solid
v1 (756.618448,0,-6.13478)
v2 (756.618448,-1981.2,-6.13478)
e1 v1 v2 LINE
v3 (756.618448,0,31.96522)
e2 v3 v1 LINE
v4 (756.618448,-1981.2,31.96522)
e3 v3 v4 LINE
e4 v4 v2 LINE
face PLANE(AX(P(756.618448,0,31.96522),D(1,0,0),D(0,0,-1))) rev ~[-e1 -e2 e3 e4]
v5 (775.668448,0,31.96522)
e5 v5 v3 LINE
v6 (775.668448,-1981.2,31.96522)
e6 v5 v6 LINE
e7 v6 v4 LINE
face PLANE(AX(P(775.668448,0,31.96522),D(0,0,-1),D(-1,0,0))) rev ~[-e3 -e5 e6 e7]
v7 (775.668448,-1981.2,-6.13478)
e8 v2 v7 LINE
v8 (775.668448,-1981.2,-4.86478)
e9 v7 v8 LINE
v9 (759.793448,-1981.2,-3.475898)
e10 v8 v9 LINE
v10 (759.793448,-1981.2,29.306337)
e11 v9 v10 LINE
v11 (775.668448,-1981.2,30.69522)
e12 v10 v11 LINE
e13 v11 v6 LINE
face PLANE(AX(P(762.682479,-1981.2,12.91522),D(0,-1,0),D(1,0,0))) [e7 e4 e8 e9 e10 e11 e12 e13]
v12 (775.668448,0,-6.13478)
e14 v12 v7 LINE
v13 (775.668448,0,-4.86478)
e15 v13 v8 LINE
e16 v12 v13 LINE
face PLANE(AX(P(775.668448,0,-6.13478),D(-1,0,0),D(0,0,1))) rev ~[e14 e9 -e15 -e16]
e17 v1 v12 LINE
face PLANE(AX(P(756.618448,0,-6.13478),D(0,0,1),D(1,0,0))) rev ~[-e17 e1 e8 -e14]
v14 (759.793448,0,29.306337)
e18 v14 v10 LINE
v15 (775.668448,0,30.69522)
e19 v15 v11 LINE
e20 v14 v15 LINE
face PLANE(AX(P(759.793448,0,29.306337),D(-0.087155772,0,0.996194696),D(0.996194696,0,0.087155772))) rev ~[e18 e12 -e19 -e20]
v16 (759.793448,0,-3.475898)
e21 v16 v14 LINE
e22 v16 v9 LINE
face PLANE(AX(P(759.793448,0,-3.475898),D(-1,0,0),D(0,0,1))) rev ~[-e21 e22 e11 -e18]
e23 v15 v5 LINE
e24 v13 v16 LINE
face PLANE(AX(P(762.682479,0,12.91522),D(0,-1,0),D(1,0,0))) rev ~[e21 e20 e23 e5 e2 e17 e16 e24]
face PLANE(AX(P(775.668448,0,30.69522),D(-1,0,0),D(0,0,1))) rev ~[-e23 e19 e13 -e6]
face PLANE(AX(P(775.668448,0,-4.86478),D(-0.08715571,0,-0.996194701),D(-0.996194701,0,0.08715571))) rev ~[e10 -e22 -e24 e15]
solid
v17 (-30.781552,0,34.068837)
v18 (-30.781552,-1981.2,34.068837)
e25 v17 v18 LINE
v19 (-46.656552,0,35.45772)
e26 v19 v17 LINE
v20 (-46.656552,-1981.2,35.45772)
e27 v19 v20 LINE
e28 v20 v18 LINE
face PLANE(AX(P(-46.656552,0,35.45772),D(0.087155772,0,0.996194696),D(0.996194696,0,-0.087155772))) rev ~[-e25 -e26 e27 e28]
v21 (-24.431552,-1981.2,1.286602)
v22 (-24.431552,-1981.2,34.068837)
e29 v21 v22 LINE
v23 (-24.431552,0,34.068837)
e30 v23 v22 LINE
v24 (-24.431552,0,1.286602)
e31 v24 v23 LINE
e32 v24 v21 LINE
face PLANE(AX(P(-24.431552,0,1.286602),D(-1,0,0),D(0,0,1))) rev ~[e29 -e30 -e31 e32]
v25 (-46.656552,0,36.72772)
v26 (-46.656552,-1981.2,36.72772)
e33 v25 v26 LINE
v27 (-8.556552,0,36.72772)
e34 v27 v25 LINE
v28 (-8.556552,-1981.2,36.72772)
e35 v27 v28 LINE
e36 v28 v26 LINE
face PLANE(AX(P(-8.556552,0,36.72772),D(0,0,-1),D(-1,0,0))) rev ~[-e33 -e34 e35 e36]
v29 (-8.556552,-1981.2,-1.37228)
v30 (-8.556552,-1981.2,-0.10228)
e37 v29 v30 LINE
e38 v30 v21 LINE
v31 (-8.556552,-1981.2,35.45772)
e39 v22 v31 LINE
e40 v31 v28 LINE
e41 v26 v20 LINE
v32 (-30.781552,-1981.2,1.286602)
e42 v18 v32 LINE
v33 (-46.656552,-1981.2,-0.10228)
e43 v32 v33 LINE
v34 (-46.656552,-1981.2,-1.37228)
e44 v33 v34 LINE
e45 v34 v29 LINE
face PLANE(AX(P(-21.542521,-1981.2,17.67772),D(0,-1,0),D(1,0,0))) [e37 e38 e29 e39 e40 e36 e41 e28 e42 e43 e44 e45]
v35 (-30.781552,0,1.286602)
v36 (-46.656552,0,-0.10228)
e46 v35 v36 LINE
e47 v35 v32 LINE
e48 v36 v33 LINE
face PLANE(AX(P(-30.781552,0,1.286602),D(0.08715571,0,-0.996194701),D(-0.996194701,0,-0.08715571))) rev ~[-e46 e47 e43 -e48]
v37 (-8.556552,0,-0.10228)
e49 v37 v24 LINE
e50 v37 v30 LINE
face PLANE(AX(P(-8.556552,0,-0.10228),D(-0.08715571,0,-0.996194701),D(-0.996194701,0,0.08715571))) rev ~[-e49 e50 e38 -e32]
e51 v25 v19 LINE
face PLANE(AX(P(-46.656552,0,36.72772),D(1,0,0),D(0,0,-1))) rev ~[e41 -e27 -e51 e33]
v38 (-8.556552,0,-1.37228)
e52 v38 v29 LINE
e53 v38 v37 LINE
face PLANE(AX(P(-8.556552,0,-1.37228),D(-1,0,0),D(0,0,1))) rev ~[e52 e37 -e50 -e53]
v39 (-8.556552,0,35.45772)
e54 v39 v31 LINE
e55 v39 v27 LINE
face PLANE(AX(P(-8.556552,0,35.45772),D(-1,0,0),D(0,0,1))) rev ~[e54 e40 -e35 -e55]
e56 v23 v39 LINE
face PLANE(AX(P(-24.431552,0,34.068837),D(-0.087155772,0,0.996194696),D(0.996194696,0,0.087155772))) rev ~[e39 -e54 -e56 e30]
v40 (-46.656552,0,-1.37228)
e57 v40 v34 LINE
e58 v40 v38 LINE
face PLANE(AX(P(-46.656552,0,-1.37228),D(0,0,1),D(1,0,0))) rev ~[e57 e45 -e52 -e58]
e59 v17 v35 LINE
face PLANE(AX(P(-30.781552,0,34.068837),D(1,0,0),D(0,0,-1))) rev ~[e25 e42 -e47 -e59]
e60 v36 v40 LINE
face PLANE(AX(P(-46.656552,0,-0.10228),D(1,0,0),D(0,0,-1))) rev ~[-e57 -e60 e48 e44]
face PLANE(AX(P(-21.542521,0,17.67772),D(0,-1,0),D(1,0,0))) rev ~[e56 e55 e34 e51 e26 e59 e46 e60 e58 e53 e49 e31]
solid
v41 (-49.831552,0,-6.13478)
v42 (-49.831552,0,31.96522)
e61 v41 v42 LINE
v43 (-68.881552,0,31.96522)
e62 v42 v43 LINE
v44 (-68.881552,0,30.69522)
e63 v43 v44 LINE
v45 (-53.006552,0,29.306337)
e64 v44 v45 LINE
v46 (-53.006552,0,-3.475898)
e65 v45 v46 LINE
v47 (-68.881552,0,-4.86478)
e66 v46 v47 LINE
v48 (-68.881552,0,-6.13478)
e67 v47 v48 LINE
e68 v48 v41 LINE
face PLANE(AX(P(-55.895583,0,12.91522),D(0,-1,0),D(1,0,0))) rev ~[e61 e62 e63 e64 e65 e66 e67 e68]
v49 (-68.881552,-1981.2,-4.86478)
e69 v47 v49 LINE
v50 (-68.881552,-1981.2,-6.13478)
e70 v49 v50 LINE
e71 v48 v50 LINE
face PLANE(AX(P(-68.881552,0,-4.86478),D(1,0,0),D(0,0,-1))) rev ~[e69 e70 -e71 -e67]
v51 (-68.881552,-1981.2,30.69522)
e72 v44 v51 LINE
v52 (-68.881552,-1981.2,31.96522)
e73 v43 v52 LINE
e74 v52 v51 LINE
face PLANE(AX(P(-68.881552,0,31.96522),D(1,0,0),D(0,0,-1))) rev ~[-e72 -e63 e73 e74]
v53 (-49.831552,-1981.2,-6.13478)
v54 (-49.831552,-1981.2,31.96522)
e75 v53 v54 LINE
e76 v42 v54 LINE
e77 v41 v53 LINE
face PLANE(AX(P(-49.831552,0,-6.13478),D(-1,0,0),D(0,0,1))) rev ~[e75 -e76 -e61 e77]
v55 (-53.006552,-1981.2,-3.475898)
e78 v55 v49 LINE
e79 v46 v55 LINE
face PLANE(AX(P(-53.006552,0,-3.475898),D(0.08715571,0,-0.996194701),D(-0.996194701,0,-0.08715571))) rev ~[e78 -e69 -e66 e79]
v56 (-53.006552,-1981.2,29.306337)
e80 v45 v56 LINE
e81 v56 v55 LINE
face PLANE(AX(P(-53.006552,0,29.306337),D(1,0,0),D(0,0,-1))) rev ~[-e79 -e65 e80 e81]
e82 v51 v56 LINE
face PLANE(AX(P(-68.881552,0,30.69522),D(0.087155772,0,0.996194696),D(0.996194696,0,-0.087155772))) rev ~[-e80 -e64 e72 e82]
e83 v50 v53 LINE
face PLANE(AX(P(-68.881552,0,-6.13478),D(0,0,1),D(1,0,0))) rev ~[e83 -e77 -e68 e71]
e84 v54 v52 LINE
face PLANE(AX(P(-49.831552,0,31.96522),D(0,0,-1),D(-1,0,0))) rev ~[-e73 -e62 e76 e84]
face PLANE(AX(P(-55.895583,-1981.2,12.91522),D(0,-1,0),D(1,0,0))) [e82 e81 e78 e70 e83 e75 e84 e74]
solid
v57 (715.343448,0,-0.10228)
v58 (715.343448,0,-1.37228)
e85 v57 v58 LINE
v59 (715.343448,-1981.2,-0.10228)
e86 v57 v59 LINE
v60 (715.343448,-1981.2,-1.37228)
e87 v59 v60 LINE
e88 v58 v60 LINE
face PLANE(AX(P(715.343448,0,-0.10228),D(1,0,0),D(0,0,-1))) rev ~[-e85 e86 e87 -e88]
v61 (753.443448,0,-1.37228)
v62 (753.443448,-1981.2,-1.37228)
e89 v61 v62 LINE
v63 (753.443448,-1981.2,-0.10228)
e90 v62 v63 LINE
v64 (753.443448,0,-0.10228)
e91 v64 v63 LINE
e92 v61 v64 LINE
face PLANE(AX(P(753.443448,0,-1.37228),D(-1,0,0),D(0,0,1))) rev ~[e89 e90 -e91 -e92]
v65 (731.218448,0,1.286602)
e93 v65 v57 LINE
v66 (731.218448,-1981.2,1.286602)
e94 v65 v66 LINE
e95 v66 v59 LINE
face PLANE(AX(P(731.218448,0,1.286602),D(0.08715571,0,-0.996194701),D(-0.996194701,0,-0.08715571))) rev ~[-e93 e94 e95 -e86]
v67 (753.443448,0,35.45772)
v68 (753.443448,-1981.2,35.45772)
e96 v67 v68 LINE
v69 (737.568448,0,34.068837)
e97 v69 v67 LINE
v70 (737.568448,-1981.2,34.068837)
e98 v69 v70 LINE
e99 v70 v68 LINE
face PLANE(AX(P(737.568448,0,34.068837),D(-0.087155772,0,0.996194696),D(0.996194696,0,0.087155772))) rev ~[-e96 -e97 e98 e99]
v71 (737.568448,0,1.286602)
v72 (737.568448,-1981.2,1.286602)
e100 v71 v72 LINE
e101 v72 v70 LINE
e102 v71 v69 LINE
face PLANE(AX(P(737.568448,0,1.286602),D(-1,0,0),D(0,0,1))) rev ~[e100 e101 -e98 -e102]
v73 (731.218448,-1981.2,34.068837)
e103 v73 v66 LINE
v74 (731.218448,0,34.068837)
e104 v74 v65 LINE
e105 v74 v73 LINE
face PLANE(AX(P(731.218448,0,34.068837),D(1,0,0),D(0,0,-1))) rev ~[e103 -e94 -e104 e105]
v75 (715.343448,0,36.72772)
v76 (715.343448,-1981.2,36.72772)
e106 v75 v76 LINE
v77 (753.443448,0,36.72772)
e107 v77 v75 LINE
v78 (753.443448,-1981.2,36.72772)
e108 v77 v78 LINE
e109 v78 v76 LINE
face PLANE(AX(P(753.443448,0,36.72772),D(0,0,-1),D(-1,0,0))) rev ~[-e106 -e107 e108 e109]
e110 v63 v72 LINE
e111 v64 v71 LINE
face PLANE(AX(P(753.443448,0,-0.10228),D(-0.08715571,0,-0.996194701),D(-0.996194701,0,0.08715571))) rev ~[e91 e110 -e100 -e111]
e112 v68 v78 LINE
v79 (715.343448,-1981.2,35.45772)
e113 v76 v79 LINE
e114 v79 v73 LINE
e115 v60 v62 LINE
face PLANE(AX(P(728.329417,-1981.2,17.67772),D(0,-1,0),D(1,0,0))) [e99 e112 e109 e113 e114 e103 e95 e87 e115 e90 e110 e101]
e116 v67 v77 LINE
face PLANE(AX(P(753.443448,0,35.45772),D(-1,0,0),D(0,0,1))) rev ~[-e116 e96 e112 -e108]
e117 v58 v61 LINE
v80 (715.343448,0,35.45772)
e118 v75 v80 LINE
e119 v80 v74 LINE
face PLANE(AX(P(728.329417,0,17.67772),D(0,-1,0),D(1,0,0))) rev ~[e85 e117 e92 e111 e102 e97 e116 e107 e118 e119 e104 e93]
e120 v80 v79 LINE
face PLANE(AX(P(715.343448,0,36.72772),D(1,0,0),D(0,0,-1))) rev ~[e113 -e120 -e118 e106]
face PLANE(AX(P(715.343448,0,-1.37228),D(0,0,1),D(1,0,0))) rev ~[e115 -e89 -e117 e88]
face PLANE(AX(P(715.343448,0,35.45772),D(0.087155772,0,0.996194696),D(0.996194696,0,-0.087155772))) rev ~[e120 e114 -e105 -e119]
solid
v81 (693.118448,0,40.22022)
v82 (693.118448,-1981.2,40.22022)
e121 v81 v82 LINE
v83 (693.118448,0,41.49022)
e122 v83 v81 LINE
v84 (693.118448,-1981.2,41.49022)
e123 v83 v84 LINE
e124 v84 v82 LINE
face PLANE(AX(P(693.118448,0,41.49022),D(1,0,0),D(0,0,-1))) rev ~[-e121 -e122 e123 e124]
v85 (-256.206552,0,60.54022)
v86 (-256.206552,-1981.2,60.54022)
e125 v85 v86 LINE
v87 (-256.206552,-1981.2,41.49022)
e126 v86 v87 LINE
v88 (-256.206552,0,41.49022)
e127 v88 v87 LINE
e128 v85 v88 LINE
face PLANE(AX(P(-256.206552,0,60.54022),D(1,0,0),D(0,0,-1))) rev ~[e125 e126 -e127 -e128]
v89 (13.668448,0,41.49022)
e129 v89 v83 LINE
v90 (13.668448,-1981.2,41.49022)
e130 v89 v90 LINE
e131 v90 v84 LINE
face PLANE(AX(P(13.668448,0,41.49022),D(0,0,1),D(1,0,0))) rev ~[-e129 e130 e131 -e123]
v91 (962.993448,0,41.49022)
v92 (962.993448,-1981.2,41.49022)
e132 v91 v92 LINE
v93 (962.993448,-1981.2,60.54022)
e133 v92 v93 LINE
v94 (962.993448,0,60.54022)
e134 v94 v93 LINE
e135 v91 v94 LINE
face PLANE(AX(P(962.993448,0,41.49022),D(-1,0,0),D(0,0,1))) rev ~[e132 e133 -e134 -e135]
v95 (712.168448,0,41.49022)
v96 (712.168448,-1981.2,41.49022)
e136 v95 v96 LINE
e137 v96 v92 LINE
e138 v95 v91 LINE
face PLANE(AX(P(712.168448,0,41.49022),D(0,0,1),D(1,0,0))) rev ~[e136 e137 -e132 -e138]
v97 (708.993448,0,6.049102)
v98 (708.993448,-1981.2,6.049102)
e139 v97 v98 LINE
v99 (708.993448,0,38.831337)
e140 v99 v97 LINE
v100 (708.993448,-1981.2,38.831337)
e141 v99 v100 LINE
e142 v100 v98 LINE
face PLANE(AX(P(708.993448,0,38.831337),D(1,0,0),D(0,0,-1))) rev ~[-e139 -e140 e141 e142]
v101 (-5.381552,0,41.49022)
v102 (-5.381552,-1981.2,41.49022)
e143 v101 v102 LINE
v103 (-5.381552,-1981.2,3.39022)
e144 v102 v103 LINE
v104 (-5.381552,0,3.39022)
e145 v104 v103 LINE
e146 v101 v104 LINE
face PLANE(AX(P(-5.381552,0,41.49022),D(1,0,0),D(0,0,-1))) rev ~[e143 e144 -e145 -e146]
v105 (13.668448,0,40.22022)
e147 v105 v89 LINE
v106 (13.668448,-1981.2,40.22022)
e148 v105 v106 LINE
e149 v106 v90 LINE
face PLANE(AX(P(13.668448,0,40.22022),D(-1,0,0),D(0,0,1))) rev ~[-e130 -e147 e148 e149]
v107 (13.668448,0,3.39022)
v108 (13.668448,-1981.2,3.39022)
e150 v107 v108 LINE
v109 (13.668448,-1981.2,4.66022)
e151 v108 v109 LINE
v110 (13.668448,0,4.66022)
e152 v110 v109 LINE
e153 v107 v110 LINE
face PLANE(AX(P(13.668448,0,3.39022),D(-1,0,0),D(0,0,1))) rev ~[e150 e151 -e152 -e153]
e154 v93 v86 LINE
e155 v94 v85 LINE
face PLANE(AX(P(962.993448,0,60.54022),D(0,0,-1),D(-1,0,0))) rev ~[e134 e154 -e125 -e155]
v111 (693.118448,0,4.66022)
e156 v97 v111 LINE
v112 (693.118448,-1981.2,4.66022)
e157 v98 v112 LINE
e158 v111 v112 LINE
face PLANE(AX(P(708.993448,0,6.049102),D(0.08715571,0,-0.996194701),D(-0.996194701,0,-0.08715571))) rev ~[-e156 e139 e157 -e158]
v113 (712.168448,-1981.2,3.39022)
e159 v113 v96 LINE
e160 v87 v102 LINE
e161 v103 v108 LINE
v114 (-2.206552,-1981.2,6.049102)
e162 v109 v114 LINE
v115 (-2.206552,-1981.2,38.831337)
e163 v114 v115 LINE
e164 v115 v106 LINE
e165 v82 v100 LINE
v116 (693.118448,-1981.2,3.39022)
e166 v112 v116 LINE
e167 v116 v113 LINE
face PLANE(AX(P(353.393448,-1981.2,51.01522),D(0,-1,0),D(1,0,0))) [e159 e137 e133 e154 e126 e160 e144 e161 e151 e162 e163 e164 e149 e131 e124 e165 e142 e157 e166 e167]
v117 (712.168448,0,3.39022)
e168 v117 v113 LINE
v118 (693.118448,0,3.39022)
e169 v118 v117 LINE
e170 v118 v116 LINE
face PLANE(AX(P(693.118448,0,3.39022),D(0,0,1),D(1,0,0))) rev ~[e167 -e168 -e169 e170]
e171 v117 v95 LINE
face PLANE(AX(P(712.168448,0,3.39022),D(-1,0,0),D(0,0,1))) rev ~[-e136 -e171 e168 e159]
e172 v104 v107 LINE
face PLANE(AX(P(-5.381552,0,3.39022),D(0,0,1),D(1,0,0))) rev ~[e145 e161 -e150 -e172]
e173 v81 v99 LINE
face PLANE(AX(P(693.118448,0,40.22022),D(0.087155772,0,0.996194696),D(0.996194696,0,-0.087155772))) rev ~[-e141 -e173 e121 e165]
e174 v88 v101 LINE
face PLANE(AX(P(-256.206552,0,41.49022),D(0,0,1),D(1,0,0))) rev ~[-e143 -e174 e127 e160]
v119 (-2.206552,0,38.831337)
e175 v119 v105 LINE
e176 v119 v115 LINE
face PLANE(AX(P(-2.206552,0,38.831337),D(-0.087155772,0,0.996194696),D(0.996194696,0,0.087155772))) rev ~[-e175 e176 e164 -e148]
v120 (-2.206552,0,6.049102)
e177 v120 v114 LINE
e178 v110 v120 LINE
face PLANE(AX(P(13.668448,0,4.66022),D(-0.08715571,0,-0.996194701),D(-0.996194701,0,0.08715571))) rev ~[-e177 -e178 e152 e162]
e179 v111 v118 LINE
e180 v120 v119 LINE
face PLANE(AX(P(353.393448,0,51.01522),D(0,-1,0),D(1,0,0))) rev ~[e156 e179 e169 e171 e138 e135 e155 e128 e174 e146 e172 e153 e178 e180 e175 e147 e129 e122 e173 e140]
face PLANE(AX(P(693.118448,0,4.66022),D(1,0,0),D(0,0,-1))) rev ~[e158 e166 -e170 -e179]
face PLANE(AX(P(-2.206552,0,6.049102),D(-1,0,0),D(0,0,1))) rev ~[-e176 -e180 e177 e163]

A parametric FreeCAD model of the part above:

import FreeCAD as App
import Part
import Sketcher
from FreeCAD import Vector
Q = App.Units.Quantity


def add_polygon(sketch, points):
    """Adds a closed chain of lines whose ends are joined by coincident constraints."""
    first, n = sketch.GeometryCount, len(points)
    for a, b in zip(points, points[1:] + points[:1]):
        sketch.addGeometry(Part.LineSegment(App.Vector(*a, 0), App.Vector(*b, 0)), False)
    for i in range(n):
        sketch.addConstraint(Sketcher.Constraint("Coincident", first + i, 2, first + (i + 1) % n, 1))

doc = App.newDocument("Part")
body = doc.addObject("PartDesign::Body", "Body")
body.AllowCompound = True

# Sketch on XZ plane
sketch1 = body.newObject("Sketcher::SketchObject", "Sketch")
sketch1.AttachmentSupport = (doc.getObject("XZ_Plane"), [""])
sketch1.MapMode = "FlatFace"
add_polygon(sketch1, [(-8.6, 36.7), (-46.7, 36.7), (-46.7, 35.5), (-30.8, 34.1), (-30.8, 1.3), (-46.7, -0.1), (-46.7, -1.4), (-8.6, -1.4), (-8.6, -0.1), (-24.4, 1.3), (-24.4, 34.1), (-8.6, 35.5)])  # lines 0-11
add_polygon(sketch1, [(-256.2, 60.5), (-256.2, 41.5), (-5.4, 41.5), (-5.4, 3.4), (13.7, 3.4), (13.7, 4.7), (-2.2, 6), (-2.2, 38.8), (13.7, 40.2), (13.7, 41.5), (693.1, 41.5), (693.1, 40.2), (709, 38.8), (709, 6), (693.1, 4.7), (693.1, 3.4), (712.2, 3.4), (712.2, 41.5), (963, 41.5), (963, 60.5)])  # lines 12-31
add_polygon(sketch1, [(-68.9, -6.1), (-49.8, -6.1), (-49.8, 32), (-68.9, 32), (-68.9, 30.7), (-53, 29.3), (-53, -3.5), (-68.9, -4.9)])  # lines 32-39
add_polygon(sketch1, [(731.2, 1.3), (715.3, -0.1), (715.3, -1.4), (753.4, -1.4), (753.4, -0.1), (737.6, 1.3), (737.6, 34.1), (753.4, 35.5), (753.4, 36.7), (715.3, 36.7), (715.3, 35.5), (731.2, 34.1)])  # lines 40-51
add_polygon(sketch1, [(775.7, 30.7), (775.7, 32), (756.6, 32), (756.6, -6.1), (775.7, -6.1), (775.7, -4.9), (759.8, -3.5), (759.8, 29.3)])  # lines 52-59
sketch1.addConstraint(Sketcher.Constraint("Horizontal", 0))
sketch1.addConstraint(Sketcher.Constraint("Vertical", 1))
sketch1.addConstraint(Sketcher.Constraint("Vertical", 3))
sketch1.addConstraint(Sketcher.Constraint("Vertical", 5))
sketch1.addConstraint(Sketcher.Constraint("Horizontal", 6))
sketch1.addConstraint(Sketcher.Constraint("Vertical", 7))
sketch1.addConstraint(Sketcher.Constraint("Vertical", 9))
sketch1.addConstraint(Sketcher.Constraint("Vertical", 11))
sketch1.addConstraint(Sketcher.Constraint("Vertical", 12))
sketch1.addConstraint(Sketcher.Constraint("Horizontal", 13))
sketch1.addConstraint(Sketcher.Constraint("Vertical", 14))
sketch1.addConstraint(Sketcher.Constraint("Horizontal", 15))
sketch1.addConstraint(Sketcher.Constraint("Vertical", 16))
sketch1.addConstraint(Sketcher.Constraint("Vertical", 18))
sketch1.addConstraint(Sketcher.Constraint("Vertical", 20))
sketch1.addConstraint(Sketcher.Constraint("Horizontal", 21))
sketch1.addConstraint(Sketcher.Constraint("Vertical", 22))
sketch1.addConstraint(Sketcher.Constraint("Vertical", 24))
sketch1.addConstraint(Sketcher.Constraint("Vertical", 26))
sketch1.addConstraint(Sketcher.Constraint("Horizontal", 27))
sketch1.addConstraint(Sketcher.Constraint("Vertical", 28))
sketch1.addConstraint(Sketcher.Constraint("Horizontal", 29))
sketch1.addConstraint(Sketcher.Constraint("Vertical", 30))
sketch1.addConstraint(Sketcher.Constraint("Horizontal", 31))
sketch1.addConstraint(Sketcher.Constraint("Horizontal", 32))
sketch1.addConstraint(Sketcher.Constraint("Vertical", 33))
sketch1.addConstraint(Sketcher.Constraint("Horizontal", 34))
sketch1.addConstraint(Sketcher.Constraint("Vertical", 35))
sketch1.addConstraint(Sketcher.Constraint("Vertical", 37))
sketch1.addConstraint(Sketcher.Constraint("Vertical", 39))
sketch1.addConstraint(Sketcher.Constraint("Vertical", 41))
sketch1.addConstraint(Sketcher.Constraint("Horizontal", 42))
sketch1.addConstraint(Sketcher.Constraint("Vertical", 43))
sketch1.addConstraint(Sketcher.Constraint("Vertical", 45))
sketch1.addConstraint(Sketcher.Constraint("Vertical", 47))
sketch1.addConstraint(Sketcher.Constraint("Horizontal", 48))
sketch1.addConstraint(Sketcher.Constraint("Vertical", 49))
sketch1.addConstraint(Sketcher.Constraint("Vertical", 51))
sketch1.addConstraint(Sketcher.Constraint("Vertical", 52))
sketch1.addConstraint(Sketcher.Constraint("Horizontal", 53))
sketch1.addConstraint(Sketcher.Constraint("Vertical", 54))
sketch1.addConstraint(Sketcher.Constraint("Horizontal", 55))
sketch1.addConstraint(Sketcher.Constraint("Vertical", 56))
sketch1.addConstraint(Sketcher.Constraint("Vertical", 58))
sketch1.addConstraint(Sketcher.Constraint("Parallel", 2, 8))
sketch1.addConstraint(Sketcher.Constraint("Parallel", 4, 10))
sketch1.addConstraint(Sketcher.Constraint("Parallel", 8, 17))
sketch1.addConstraint(Sketcher.Constraint("Parallel", 10, 19))
sketch1.addConstraint(Sketcher.Constraint("Parallel", 17, 23))
sketch1.addConstraint(Sketcher.Constraint("Parallel", 19, 25))
sketch1.addConstraint(Sketcher.Constraint("Parallel", 23, 36))
sketch1.addConstraint(Sketcher.Constraint("Parallel", 25, 38))
sketch1.addConstraint(Sketcher.Constraint("Parallel", 38, 40))
sketch1.addConstraint(Sketcher.Constraint("Parallel", 36, 44))
sketch1.addConstraint(Sketcher.Constraint("Parallel", 40, 46))
sketch1.addConstraint(Sketcher.Constraint("Parallel", 44, 50))
sketch1.addConstraint(Sketcher.Constraint("Parallel", 50, 57))
sketch1.addConstraint(Sketcher.Constraint("Parallel", 46, 59))
sketch1.addConstraint(Sketcher.Constraint("Horizontal", 4, 2, 7, 2))
sketch1.addConstraint(Sketcher.Constraint("Horizontal", 3, 2, 8, 2))
sketch1.addConstraint(Sketcher.Constraint("Horizontal", 2, 2, 9, 2))
sketch1.addConstraint(Sketcher.Constraint("Horizontal", 1, 2, 10, 2))
sketch1.addConstraint(Sketcher.Constraint("Horizontal", 13, 2, 20, 2))
sketch1.addConstraint(Sketcher.Constraint("Horizontal", 19, 2, 22, 2))
sketch1.addConstraint(Sketcher.Constraint("Horizontal", 18, 2, 23, 2))
sketch1.addConstraint(Sketcher.Constraint("Horizontal", 17, 2, 24, 2))
sketch1.addConstraint(Sketcher.Constraint("Horizontal", 16, 2, 25, 2))
sketch1.addConstraint(Sketcher.Constraint("Horizontal", 15, 2, 26, 2))
sketch1.addConstraint(Sketcher.Constraint("Horizontal", 21, 2, 28, 2))
sketch1.addConstraint(Sketcher.Constraint("Horizontal", 7, 2, 40, 2))
sketch1.addConstraint(Sketcher.Constraint("Horizontal", 6, 2, 41, 2))
sketch1.addConstraint(Sketcher.Constraint("Horizontal", 40, 2, 43, 2))
sketch1.addConstraint(Sketcher.Constraint("Horizontal", 8, 2, 44, 2))
sketch1.addConstraint(Sketcher.Constraint("Horizontal", 9, 2, 45, 2))
sketch1.addConstraint(Sketcher.Constraint("Horizontal", 10, 2, 46, 2))
sketch1.addConstraint(Sketcher.Constraint("Horizontal", 11, 2, 47, 2))
sketch1.addConstraint(Sketcher.Constraint("Horizontal", 46, 2, 49, 2))
sketch1.addConstraint(Sketcher.Constraint("Horizontal", 45, 2, 50, 2))
sketch1.addConstraint(Sketcher.Constraint("Horizontal", 44, 2, 51, 2))
sketch1.addConstraint(Sketcher.Constraint("Horizontal", 34, 2, 52, 2))
sketch1.addConstraint(Sketcher.Constraint("Horizontal", 39, 2, 54, 2))
sketch1.addConstraint(Sketcher.Constraint("Horizontal", 38, 2, 56, 2))
sketch1.addConstraint(Sketcher.Constraint("Horizontal", 37, 2, 57, 2))
sketch1.addConstraint(Sketcher.Constraint("Horizontal", 36, 2, 58, 2))
sketch1.addConstraint(Sketcher.Constraint("Horizontal", 35, 2, 59, 2))
sketch1.addConstraint(Sketcher.Constraint("Vertical", 1, 2, 4, 2))
sketch1.addConstraint(Sketcher.Constraint("Vertical", 7, 2, 10, 2))
sketch1.addConstraint(Sketcher.Constraint("Vertical", 16, 2, 19, 2))
sketch1.addConstraint(Sketcher.Constraint("Vertical", 35, 2, 38, 2))
sketch1.addConstraint(Sketcher.Constraint("Equal", 15, 27))
sketch1.addConstraint(Sketcher.Constraint("Equal", 13, 29))
sketch1.addConstraint(Sketcher.Constraint("Equal", 27, 32))
sketch1.addConstraint(Sketcher.Constraint("Equal", 6, 42))
sketch1.addConstraint(Sketcher.Constraint("Equal", 34, 53))
sketch1.addConstraint(Sketcher.Constraint("Equal", 1, 5))
sketch1.addConstraint(Sketcher.Constraint("Equal", 55, 12))
sketch1.addConstraint(Sketcher.Constraint("Equal", 48, 14))
sketch1.addConstraint(Sketcher.Constraint("Equal", 11, 16))
sketch1.addConstraint(Sketcher.Constraint("Equal", 9, 18))
sketch1.addConstraint(Sketcher.Constraint("Equal", 16, 20))
sketch1.addConstraint(Sketcher.Constraint("Equal", 28, 33))
sketch1.addConstraint(Sketcher.Constraint("Equal", 26, 35))
sketch1.addConstraint(Sketcher.Constraint("Equal", 24, 37))
sketch1.addConstraint(Sketcher.Constraint("Equal", 35, 39))
sketch1.addConstraint(Sketcher.Constraint("Equal", 10, 17))
sketch1.addConstraint(Sketcher.Constraint("DistanceX", 31, 2, 31, 1, Q("48 in")))
sketch1.addConstraint(Sketcher.Constraint("DistanceX", 0, 2, 0, 1, Q("1.5 in")))
sketch1.addConstraint(Sketcher.Constraint("Angle", 2, Q("-5.000002 deg")))
sketch1.addConstraint(Sketcher.Constraint("DistanceX", 2, 2, 13, 2, Q("1 in")))
sketch1.addConstraint(Sketcher.Constraint("DistanceX", 23, 2, 29, 2, Q("10 in")))
sketch1.addConstraint(Sketcher.Constraint("DistanceX", 32, 2, 8, 2, Q("1 in")))
sketch1.addConstraint(Sketcher.Constraint("DistanceX", 27, 2, 44, 2, Q("1 in")))
sketch1.addConstraint(Sketcher.Constraint("DistanceX", 50, 2, 53, 2, Q("1 in")))
sketch1.addConstraint(Sketcher.Constraint("DistanceX", 15, 1, 15, 2, Q("0.75 in")))
sketch1.addConstraint(Sketcher.Constraint("DistanceX", 21, 1, 21, 2, Q("26.75 in")))
sketch1.addConstraint(Sketcher.Constraint("DistanceY", 1, 2, 1, 1, Q("0.05 in")))
sketch1.addConstraint(Sketcher.Constraint("DistanceY", 0, 2, 12, 2, Q("0.1875 in")))
sketch1.addConstraint(Sketcher.Constraint("DistanceY", 32, 2, 5, 2, Q("0.1875 in")))
sketch1.addConstraint(Sketcher.Constraint("DistanceX", 0, 2, -1, 1, 46.656552))
sketch1.addConstraint(Sketcher.Constraint("DistanceY", -1, 1, 0, 2, 36.72772))
pad1 = body.newObject("PartDesign::Pad", "Pad")
pad1.Profile = sketch1
pad1.Length = Q("78 in")

doc.recompute()
